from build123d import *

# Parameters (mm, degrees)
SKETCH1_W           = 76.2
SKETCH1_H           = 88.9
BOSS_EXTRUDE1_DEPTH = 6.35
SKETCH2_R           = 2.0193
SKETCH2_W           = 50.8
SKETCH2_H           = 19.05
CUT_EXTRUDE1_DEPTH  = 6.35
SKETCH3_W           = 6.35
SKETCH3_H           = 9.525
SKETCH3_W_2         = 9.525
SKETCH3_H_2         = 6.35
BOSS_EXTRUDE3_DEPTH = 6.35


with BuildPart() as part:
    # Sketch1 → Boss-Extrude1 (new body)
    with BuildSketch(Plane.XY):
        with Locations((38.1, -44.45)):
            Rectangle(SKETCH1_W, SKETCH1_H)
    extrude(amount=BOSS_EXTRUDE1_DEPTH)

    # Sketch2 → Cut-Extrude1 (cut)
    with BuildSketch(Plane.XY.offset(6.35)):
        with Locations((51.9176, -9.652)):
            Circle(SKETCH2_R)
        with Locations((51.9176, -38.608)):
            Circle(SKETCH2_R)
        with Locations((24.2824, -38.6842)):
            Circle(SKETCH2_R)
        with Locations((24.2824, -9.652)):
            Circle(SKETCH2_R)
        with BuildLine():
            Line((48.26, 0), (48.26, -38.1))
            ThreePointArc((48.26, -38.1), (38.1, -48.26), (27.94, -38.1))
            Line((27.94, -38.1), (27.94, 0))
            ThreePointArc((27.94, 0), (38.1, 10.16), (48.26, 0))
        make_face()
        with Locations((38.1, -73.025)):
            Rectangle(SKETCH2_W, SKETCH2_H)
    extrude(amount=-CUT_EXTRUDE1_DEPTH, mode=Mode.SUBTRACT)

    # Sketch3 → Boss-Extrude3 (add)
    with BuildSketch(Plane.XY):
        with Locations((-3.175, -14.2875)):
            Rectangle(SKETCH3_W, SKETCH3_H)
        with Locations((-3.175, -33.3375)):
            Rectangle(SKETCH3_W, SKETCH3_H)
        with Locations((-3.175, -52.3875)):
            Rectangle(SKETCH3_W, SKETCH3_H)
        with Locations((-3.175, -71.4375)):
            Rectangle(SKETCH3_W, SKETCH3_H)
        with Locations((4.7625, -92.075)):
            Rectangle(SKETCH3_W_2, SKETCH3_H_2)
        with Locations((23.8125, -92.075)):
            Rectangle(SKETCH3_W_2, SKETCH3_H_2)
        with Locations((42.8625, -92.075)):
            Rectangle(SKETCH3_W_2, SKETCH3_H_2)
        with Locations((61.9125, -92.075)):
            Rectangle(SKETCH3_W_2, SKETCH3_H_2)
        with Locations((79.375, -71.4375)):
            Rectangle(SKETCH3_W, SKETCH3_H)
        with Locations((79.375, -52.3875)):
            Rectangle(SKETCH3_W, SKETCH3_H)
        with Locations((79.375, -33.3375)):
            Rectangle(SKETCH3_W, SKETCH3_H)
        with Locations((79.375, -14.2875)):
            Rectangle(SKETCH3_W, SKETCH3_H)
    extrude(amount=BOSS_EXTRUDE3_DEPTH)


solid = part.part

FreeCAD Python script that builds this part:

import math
import FreeCAD as App
import Part
import Sketcher
from FreeCAD import Vector
Q = App.Units.Quantity

doc = App.newDocument("Part")
body = doc.addObject("PartDesign::Body", "Body")

# Sketch on XY plane
sketch1 = body.newObject("Sketcher::SketchObject", "Sketch")
sketch1.AttachmentSupport = (doc.getObject("XY_Plane"), [""])
sketch1.MapMode = "FlatFace"
sketch1.addGeometry([
    Part.LineSegment(Vector(0, 0, 0), Vector(0, -89, 0)),
    Part.LineSegment(Vector(0, -89, 0), Vector(76, -89, 0)),
    Part.LineSegment(Vector(76, -89, 0), Vector(76, 0, 0)),
    Part.LineSegment(Vector(76, 0, 0), Vector(0, 0, 0)),
], False)
sketch1.addConstraint([
    Sketcher.Constraint("Coincident", 0, 2, 1, 1),
    Sketcher.Constraint("Coincident", 1, 2, 2, 1),
    Sketcher.Constraint("Coincident", 2, 2, 3, 1),
    Sketcher.Constraint("Coincident", 3, 2, 0, 1),
    Sketcher.Constraint("Vertical", 0),
    Sketcher.Constraint("Horizontal", 1),
    Sketcher.Constraint("Vertical", 2),
    Sketcher.Constraint("Horizontal", 3),
    Sketcher.Constraint("Coincident", 3, 2, -1, 1),
    Sketcher.Constraint("DistanceX", 1, 1, 1, 2, Q("3 in")),
    Sketcher.Constraint("DistanceY", 0, 2, 0, 1, Q("3.5 in")),
])
pad1 = body.newObject("PartDesign::Pad", "Pad")
pad1.Profile = sketch1
pad1.Length = Q("0.25 in")

# Sketch on XY plane
sketch2 = body.newObject("Sketcher::SketchObject", "Sketch001")
sketch2.AttachmentSupport = (doc.getObject("XY_Plane"), [""])
sketch2.MapMode = "FlatFace"
sketch2.AttachmentOffset = App.Placement(Vector(0, 0, 0.25 * 25.4), App.Rotation())
sketch2.addGeometry([
    Part.Circle(Vector(51.9, -9.7, 0), Vector(0, 0, 1), 2),  # 0
    Part.Circle(Vector(51.9, -38.6, 0), Vector(0, 0, 1), 2),  # 1
    Part.Circle(Vector(24.3, -38.7, 0), Vector(0, 0, 1), 2),  # 2
    Part.Circle(Vector(24.3, -9.7, 0), Vector(0, 0, 1), 2),  # 3
    Part.LineSegment(Vector(48.3, -38.1, 0), Vector(48.3, 0, 0)),  # 4
    Part.ArcOfCircle(Part.Circle(Vector(38.1, 0, 0), Vector(0, 0, 1), 10.2), math.radians(0), math.radians(180)),  # 5
    Part.LineSegment(Vector(27.9, 0, 0), Vector(27.9, -38.1, 0)),  # 6
    Part.ArcOfCircle(Part.Circle(Vector(38.1, -38.1, 0), Vector(0, 0, 1), 10.2), math.radians(180), math.radians(360)),  # 7
    Part.LineSegment(Vector(12.7, -63.5, 0), Vector(12.7, -82.5, 0)),  # 8
    Part.LineSegment(Vector(12.7, -82.5, 0), Vector(63.5, -82.5, 0)),  # 9
    Part.LineSegment(Vector(63.5, -82.5, 0), Vector(63.5, -63.5, 0)),  # 10
    Part.LineSegment(Vector(63.5, -63.5, 0), Vector(12.7, -63.5, 0)),  # 11
], False)
sketch2.addConstraint([
    Sketcher.Constraint("Tangent", 4, 2, 5, 1),
    Sketcher.Constraint("Tangent", 5, 2, 6, 1),
    Sketcher.Constraint("Tangent", 6, 2, 7, 1),
    Sketcher.Constraint("Tangent", 7, 2, 4, 1),
    Sketcher.Constraint("Coincident", 8, 2, 9, 1),
    Sketcher.Constraint("Coincident", 9, 2, 10, 1),
    Sketcher.Constraint("Coincident", 10, 2, 11, 1),
    Sketcher.Constraint("Coincident", 11, 2, 8, 1),
    Sketcher.Constraint("Vertical", 4),
    Sketcher.Constraint("Vertical", 6),
    Sketcher.Constraint("Vertical", 8),
    Sketcher.Constraint("Horizontal", 9),
    Sketcher.Constraint("Vertical", 10),
    Sketcher.Constraint("Horizontal", 11),
    Sketcher.Constraint("Equal", 0, 1),
    Sketcher.Constraint("Equal", 1, 2),
    Sketcher.Constraint("Equal", 2, 3),
    Sketcher.Constraint("PointOnObject", 5, 3, -1),
    Sketcher.Constraint("Horizontal", 0, 3, 3, 3),
    Sketcher.Constraint("Vertical", 0, 3, 1, 3),
    Sketcher.Constraint("Vertical", 2, 3, 3, 3),
    Sketcher.Constraint("Radius", 5, Q("0.4 in")),
    Sketcher.Constraint("DistanceX", 9, 1, 9, 2, Q("2 in")),
    Sketcher.Constraint("Diameter", 0, Q("0.159 in")),
    Sketcher.Constraint("DistanceY", 4, 1, 4, 2, Q("1.5 in")),
    Sketcher.Constraint("DistanceX", 8, 2, 7, 3, Q("1 in")),
    Sketcher.Constraint("DistanceY", 10, 2, 7, 2, Q("1 in")),
    Sketcher.Constraint("DistanceY", 8, 2, 8, 1, Q("0.75 in")),
    Sketcher.Constraint("DistanceX", -1, 1, 5, 3, Q("1.5 in")),
    Sketcher.Constraint("DistanceY", 0, 3, -1, 1, Q("0.38 in")),
    Sketcher.Constraint("DistanceY", 1, 3, -1, 1, Q("1.52 in")),
    Sketcher.Constraint("DistanceX", -1, 1, 0, 3, Q("2.044 in")),
    Sketcher.Constraint("DistanceX", -1, 1, 2, 3, Q("0.956 in")),
    Sketcher.Constraint("DistanceY", 2, 3, -1, 1, Q("1.523 in")),
])
pocket1 = body.newObject("PartDesign::Pocket", "Pocket")
pocket1.Profile = sketch2
pocket1.Length = Q("0.25 in")

# Sketch on XY plane
sketch3 = body.newObject("Sketcher::SketchObject", "Sketch002")
sketch3.AttachmentSupport = (doc.getObject("XY_Plane"), [""])
sketch3.MapMode = "FlatFace"
sketch3.addGeometry([
    Part.LineSegment(Vector(-6, -10, 0), Vector(-6, -19, 0)),  # 0
    Part.LineSegment(Vector(-6, -19, 0), Vector(0, -19, 0)),  # 1
    Part.LineSegment(Vector(0, -19, 0), Vector(0, -10, 0)),  # 2
    Part.LineSegment(Vector(0, -10, 0), Vector(-6, -10, 0)),  # 3
    Part.LineSegment(Vector(-6, -29, 0), Vector(-6, -38, 0)),  # 4
    Part.LineSegment(Vector(-6, -38, 0), Vector(0, -38, 0)),  # 5
    Part.LineSegment(Vector(0, -38, 0), Vector(0, -29, 0)),  # 6
    Part.LineSegment(Vector(0, -29, 0), Vector(-6, -29, 0)),  # 7
    Part.LineSegment(Vector(-6, -48, 0), Vector(-6, -57, 0)),  # 8
    Part.LineSegment(Vector(-6, -57, 0), Vector(0, -57, 0)),  # 9
    Part.LineSegment(Vector(0, -57, 0), Vector(0, -48, 0)),  # 10
    Part.LineSegment(Vector(0, -48, 0), Vector(-6, -48, 0)),  # 11
    Part.LineSegment(Vector(-6, -67, 0), Vector(-6, -76, 0)),  # 12
    Part.LineSegment(Vector(-6, -76, 0), Vector(0, -76, 0)),  # 13
    Part.LineSegment(Vector(0, -76, 0), Vector(0, -67, 0)),  # 14
    Part.LineSegment(Vector(0, -67, 0), Vector(-6, -67, 0)),  # 15
    Part.LineSegment(Vector(0, -89, 0), Vector(0, -95, 0)),  # 16
    Part.LineSegment(Vector(0, -95, 0), Vector(10, -95, 0)),  # 17
    Part.LineSegment(Vector(10, -95, 0), Vector(10, -89, 0)),  # 18
    Part.LineSegment(Vector(10, -89, 0), Vector(0, -89, 0)),  # 19
    Part.LineSegment(Vector(19, -89, 0), Vector(19, -95, 0)),  # 20
    Part.LineSegment(Vector(19, -95, 0), Vector(29, -95, 0)),  # 21
    Part.LineSegment(Vector(29, -95, 0), Vector(29, -89, 0)),  # 22
    Part.LineSegment(Vector(29, -89, 0), Vector(19, -89, 0)),  # 23
    Part.LineSegment(Vector(38, -89, 0), Vector(38, -95, 0)),  # 24
    Part.LineSegment(Vector(38, -95, 0), Vector(48, -95, 0)),  # 25
    Part.LineSegment(Vector(48, -95, 0), Vector(48, -89, 0)),  # 26
    Part.LineSegment(Vector(48, -89, 0), Vector(38, -89, 0)),  # 27
    Part.LineSegment(Vector(57, -89, 0), Vector(57, -95, 0)),  # 28
    Part.LineSegment(Vector(57, -95, 0), Vector(67, -95, 0)),  # 29
    Part.LineSegment(Vector(67, -95, 0), Vector(67, -89, 0)),  # 30
    Part.LineSegment(Vector(67, -89, 0), Vector(57, -89, 0)),  # 31
    Part.LineSegment(Vector(76, -67, 0), Vector(76, -76, 0)),  # 32
    Part.LineSegment(Vector(76, -76, 0), Vector(83, -76, 0)),  # 33
    Part.LineSegment(Vector(83, -76, 0), Vector(83, -67, 0)),  # 34
    Part.LineSegment(Vector(83, -67, 0), Vector(76, -67, 0)),  # 35
    Part.LineSegment(Vector(76, -48, 0), Vector(76, -57, 0)),  # 36
    Part.LineSegment(Vector(76, -57, 0), Vector(83, -57, 0)),  # 37
    Part.LineSegment(Vector(83, -57, 0), Vector(83, -48, 0)),  # 38
    Part.LineSegment(Vector(83, -48, 0), Vector(76, -48, 0)),  # 39
    Part.LineSegment(Vector(76, -29, 0), Vector(76, -38, 0)),  # 40
    Part.LineSegment(Vector(76, -38, 0), Vector(83, -38, 0)),  # 41
    Part.LineSegment(Vector(83, -38, 0), Vector(83, -29, 0)),  # 42
    Part.LineSegment(Vector(83, -29, 0), Vector(76, -29, 0)),  # 43
    Part.LineSegment(Vector(76, -10, 0), Vector(76, -19, 0)),  # 44
    Part.LineSegment(Vector(76, -19, 0), Vector(83, -19, 0)),  # 45
    Part.LineSegment(Vector(83, -19, 0), Vector(83, -10, 0)),  # 46
    Part.LineSegment(Vector(83, -10, 0), Vector(76, -10, 0)),  # 47
], False)
sketch3.addConstraint([
    Sketcher.Constraint("Coincident", 0, 2, 1, 1),
    Sketcher.Constraint("Coincident", 1, 2, 2, 1),
    Sketcher.Constraint("Coincident", 2, 2, 3, 1),
    Sketcher.Constraint("Coincident", 3, 2, 0, 1),
    Sketcher.Constraint("Coincident", 4, 2, 5, 1),
    Sketcher.Constraint("Coincident", 5, 2, 6, 1),
    Sketcher.Constraint("Coincident", 6, 2, 7, 1),
    Sketcher.Constraint("Coincident", 7, 2, 4, 1),
    Sketcher.Constraint("Coincident", 8, 2, 9, 1),
    Sketcher.Constraint("Coincident", 9, 2, 10, 1),
    Sketcher.Constraint("Coincident", 10, 2, 11, 1),
    Sketcher.Constraint("Coincident", 11, 2, 8, 1),
    Sketcher.Constraint("Coincident", 12, 2, 13, 1),
    Sketcher.Constraint("Coincident", 13, 2, 14, 1),
    Sketcher.Constraint("Coincident", 14, 2, 15, 1),
    Sketcher.Constraint("Coincident", 15, 2, 12, 1),
    Sketcher.Constraint("Coincident", 16, 2, 17, 1),
    Sketcher.Constraint("Coincident", 17, 2, 18, 1),
    Sketcher.Constraint("Coincident", 18, 2, 19, 1),
    Sketcher.Constraint("Coincident", 19, 2, 16, 1),
    Sketcher.Constraint("Coincident", 20, 2, 21, 1),
    Sketcher.Constraint("Coincident", 21, 2, 22, 1),
    Sketcher.Constraint("Coincident", 22, 2, 23, 1),
    Sketcher.Constraint("Coincident", 23, 2, 20, 1),
    Sketcher.Constraint("Coincident", 24, 2, 25, 1),
    Sketcher.Constraint("Coincident", 25, 2, 26, 1),
    Sketcher.Constraint("Coincident", 26, 2, 27, 1),
    Sketcher.Constraint("Coincident", 27, 2, 24, 1),
    Sketcher.Constraint("Coincident", 28, 2, 29, 1),
    Sketcher.Constraint("Coincident", 29, 2, 30, 1),
    Sketcher.Constraint("Coincident", 30, 2, 31, 1),
    Sketcher.Constraint("Coincident", 31, 2, 28, 1),
    Sketcher.Constraint("Coincident", 32, 2, 33, 1),
    Sketcher.Constraint("Coincident", 33, 2, 34, 1),
    Sketcher.Constraint("Coincident", 34, 2, 35, 1),
    Sketcher.Constraint("Coincident", 35, 2, 32, 1),
    Sketcher.Constraint("Coincident", 36, 2, 37, 1),
    Sketcher.Constraint("Coincident", 37, 2, 38, 1),
    Sketcher.Constraint("Coincident", 38, 2, 39, 1),
    Sketcher.Constraint("Coincident", 39, 2, 36, 1),
    Sketcher.Constraint("Coincident", 40, 2, 41, 1),
    Sketcher.Constraint("Coincident", 41, 2, 42, 1),
    Sketcher.Constraint("Coincident", 42, 2, 43, 1),
    Sketcher.Constraint("Coincident", 43, 2, 40, 1),
    Sketcher.Constraint("Coincident", 44, 2, 45, 1),
    Sketcher.Constraint("Coincident", 45, 2, 46, 1),
    Sketcher.Constraint("Coincident", 46, 2, 47, 1),
    Sketcher.Constraint("Coincident", 47, 2, 44, 1),
    Sketcher.Constraint("Vertical", 0),
    Sketcher.Constraint("Horizontal", 1),
    Sketcher.Constraint("Vertical", 2),
    Sketcher.Constraint("Horizontal", 3),
    Sketcher.Constraint("Vertical", 4),
    Sketcher.Constraint("Horizontal", 5),
    Sketcher.Constraint("Vertical", 6),
    Sketcher.Constraint("Horizontal", 7),
    Sketcher.Constraint("Vertical", 8),
    Sketcher.Constraint("Horizontal", 9),
    Sketcher.Constraint("Vertical", 10),
    Sketcher.Constraint("Horizontal", 11),
    Sketcher.Constraint("Vertical", 12),
    Sketcher.Constraint("Horizontal", 13),
    Sketcher.Constraint("Vertical", 14),
    Sketcher.Constraint("Horizontal", 15),
    Sketcher.Constraint("Vertical", 16),
    Sketcher.Constraint("Horizontal", 17),
    Sketcher.Constraint("Vertical", 18),
    Sketcher.Constraint("Horizontal", 19),
    Sketcher.Constraint("Vertical", 20),
    Sketcher.Constraint("Horizontal", 21),
    Sketcher.Constraint("Vertical", 22),
    Sketcher.Constraint("Horizontal", 23),
    Sketcher.Constraint("Vertical", 24),
    Sketcher.Constraint("Horizontal", 25),
    Sketcher.Constraint("Vertical", 26),
    Sketcher.Constraint("Horizontal", 27),
    Sketcher.Constraint("Vertical", 28),
    Sketcher.Constraint("Horizontal", 29),
    Sketcher.Constraint("Vertical", 30),
    Sketcher.Constraint("Horizontal", 31),
    Sketcher.Constraint("Vertical", 32),
    Sketcher.Constraint("Horizontal", 33),
    Sketcher.Constraint("Vertical", 34),
    Sketcher.Constraint("Horizontal", 35),
    Sketcher.Constraint("Vertical", 36),
    Sketcher.Constraint("Horizontal", 37),
    Sketcher.Constraint("Vertical", 38),
    Sketcher.Constraint("Horizontal", 39),
    Sketcher.Constraint("Vertical", 40),
    Sketcher.Constraint("Horizontal", 41),
    Sketcher.Constraint("Vertical", 42),
    Sketcher.Constraint("Horizontal", 43),
    Sketcher.Constraint("Vertical", 44),
    Sketcher.Constraint("Horizontal", 45),
    Sketcher.Constraint("Vertical", 46),
    Sketcher.Constraint("Horizontal", 47),
    Sketcher.Constraint("PointOnObject", 1, 2, -2),
    Sketcher.Constraint("PointOnObject", 5, 2, -2),
    Sketcher.Constraint("PointOnObject", 9, 2, -2),
    Sketcher.Constraint("PointOnObject", 13, 2, -2),
    Sketcher.Constraint("PointOnObject", 16, 2, -2),
    Sketcher.Constraint("Horizontal", 17, 2, 20, 2),
    Sketcher.Constraint("Horizontal", 19, 2, 22, 2),
    Sketcher.Constraint("Horizontal", 21, 2, 24, 2),
    Sketcher.Constraint("Horizontal", 23, 2, 26, 2),
    Sketcher.Constraint("Horizontal", 25, 2, 28, 2),
    Sketcher.Constraint("Horizontal", 27, 2, 30, 2),
    Sketcher.Constraint("Horizontal", 13, 2, 32, 2),
    Sketcher.Constraint("Horizontal", 15, 2, 34, 2),
    Sketcher.Constraint("Horizontal", 9, 2, 36, 2),
    Sketcher.Constraint("Horizontal", 11, 2, 38, 2),
    Sketcher.Constraint("Horizontal", 5, 2, 40, 2),
    Sketcher.Constraint("Horizontal", 7, 2, 42, 2),
    Sketcher.Constraint("Horizontal", 1, 2, 44, 2),
    Sketcher.Constraint("Horizontal", 3, 2, 46, 2),
    Sketcher.Constraint("Vertical", 3, 2, 4, 2),
    Sketcher.Constraint("Vertical", 7, 2, 8, 2),
    Sketcher.Constraint("Vertical", 11, 2, 12, 2),
    Sketcher.Constraint("Vertical", 35, 2, 36, 2),
    Sketcher.Constraint("Vertical", 34, 2, 37, 2),
    Sketcher.Constraint("Vertical", 39, 2, 40, 2),
    Sketcher.Constraint("Vertical", 38, 2, 41, 2),
    Sketcher.Constraint("Vertical", 43, 2, 44, 2),
    Sketcher.Constraint("Vertical", 42, 2, 45, 2),
    Sketcher.Constraint("Equal", 19, 21),
    Sketcher.Constraint("Equal", 23, 25),
    Sketcher.Constraint("Equal", 27, 29),
    Sketcher.Constraint("Equal", 15, 33),
    Sketcher.Constraint("Equal", 31, 0),
    Sketcher.Constraint("Equal", 2, 4),
    Sketcher.Constraint("Equal", 6, 8),
    Sketcher.Constraint("Equal", 10, 12),
    Sketcher.Constraint("Equal", 47, 16),
    Sketcher.Constraint("DistanceY", 12, 2, -1, 1, Q("3 in")),
    Sketcher.Constraint("DistanceX", -1, 1, 32, 2, Q("3 in")),
    Sketcher.Constraint("DistanceX", 31, 2, 33, 2, Q("1 in")),
    Sketcher.Constraint("DistanceX", 1, 1, 1, 2, Q("0.25 in")),
    Sketcher.Constraint("DistanceY", 4, 2, -1, 1, Q("1.5 in")),
    Sketcher.Constraint("DistanceY", 18, 2, -1, 1, Q("3.5 in")),
    Sketcher.Constraint("DistanceX", -1, 1, 24, 2, Q("1.5 in")),
    Sketcher.Constraint("DistanceY", 8, 2, 0, 2, Q("1.5 in")),
    Sketcher.Constraint("DistanceY", 16, 2, 9, 2, Q("1.5 in")),
    Sketcher.Constraint("DistanceX", 17, 1, 17, 2, Q("0.375 in")),
    Sketcher.Constraint("DistanceX", -1, 1, 20, 2, Q("0.75 in")),
])
pad2 = body.newObject("PartDesign::Pad", "Pad001")
pad2.Profile = sketch3
pad2.Length = Q("0.25 in")

doc.recompute()
